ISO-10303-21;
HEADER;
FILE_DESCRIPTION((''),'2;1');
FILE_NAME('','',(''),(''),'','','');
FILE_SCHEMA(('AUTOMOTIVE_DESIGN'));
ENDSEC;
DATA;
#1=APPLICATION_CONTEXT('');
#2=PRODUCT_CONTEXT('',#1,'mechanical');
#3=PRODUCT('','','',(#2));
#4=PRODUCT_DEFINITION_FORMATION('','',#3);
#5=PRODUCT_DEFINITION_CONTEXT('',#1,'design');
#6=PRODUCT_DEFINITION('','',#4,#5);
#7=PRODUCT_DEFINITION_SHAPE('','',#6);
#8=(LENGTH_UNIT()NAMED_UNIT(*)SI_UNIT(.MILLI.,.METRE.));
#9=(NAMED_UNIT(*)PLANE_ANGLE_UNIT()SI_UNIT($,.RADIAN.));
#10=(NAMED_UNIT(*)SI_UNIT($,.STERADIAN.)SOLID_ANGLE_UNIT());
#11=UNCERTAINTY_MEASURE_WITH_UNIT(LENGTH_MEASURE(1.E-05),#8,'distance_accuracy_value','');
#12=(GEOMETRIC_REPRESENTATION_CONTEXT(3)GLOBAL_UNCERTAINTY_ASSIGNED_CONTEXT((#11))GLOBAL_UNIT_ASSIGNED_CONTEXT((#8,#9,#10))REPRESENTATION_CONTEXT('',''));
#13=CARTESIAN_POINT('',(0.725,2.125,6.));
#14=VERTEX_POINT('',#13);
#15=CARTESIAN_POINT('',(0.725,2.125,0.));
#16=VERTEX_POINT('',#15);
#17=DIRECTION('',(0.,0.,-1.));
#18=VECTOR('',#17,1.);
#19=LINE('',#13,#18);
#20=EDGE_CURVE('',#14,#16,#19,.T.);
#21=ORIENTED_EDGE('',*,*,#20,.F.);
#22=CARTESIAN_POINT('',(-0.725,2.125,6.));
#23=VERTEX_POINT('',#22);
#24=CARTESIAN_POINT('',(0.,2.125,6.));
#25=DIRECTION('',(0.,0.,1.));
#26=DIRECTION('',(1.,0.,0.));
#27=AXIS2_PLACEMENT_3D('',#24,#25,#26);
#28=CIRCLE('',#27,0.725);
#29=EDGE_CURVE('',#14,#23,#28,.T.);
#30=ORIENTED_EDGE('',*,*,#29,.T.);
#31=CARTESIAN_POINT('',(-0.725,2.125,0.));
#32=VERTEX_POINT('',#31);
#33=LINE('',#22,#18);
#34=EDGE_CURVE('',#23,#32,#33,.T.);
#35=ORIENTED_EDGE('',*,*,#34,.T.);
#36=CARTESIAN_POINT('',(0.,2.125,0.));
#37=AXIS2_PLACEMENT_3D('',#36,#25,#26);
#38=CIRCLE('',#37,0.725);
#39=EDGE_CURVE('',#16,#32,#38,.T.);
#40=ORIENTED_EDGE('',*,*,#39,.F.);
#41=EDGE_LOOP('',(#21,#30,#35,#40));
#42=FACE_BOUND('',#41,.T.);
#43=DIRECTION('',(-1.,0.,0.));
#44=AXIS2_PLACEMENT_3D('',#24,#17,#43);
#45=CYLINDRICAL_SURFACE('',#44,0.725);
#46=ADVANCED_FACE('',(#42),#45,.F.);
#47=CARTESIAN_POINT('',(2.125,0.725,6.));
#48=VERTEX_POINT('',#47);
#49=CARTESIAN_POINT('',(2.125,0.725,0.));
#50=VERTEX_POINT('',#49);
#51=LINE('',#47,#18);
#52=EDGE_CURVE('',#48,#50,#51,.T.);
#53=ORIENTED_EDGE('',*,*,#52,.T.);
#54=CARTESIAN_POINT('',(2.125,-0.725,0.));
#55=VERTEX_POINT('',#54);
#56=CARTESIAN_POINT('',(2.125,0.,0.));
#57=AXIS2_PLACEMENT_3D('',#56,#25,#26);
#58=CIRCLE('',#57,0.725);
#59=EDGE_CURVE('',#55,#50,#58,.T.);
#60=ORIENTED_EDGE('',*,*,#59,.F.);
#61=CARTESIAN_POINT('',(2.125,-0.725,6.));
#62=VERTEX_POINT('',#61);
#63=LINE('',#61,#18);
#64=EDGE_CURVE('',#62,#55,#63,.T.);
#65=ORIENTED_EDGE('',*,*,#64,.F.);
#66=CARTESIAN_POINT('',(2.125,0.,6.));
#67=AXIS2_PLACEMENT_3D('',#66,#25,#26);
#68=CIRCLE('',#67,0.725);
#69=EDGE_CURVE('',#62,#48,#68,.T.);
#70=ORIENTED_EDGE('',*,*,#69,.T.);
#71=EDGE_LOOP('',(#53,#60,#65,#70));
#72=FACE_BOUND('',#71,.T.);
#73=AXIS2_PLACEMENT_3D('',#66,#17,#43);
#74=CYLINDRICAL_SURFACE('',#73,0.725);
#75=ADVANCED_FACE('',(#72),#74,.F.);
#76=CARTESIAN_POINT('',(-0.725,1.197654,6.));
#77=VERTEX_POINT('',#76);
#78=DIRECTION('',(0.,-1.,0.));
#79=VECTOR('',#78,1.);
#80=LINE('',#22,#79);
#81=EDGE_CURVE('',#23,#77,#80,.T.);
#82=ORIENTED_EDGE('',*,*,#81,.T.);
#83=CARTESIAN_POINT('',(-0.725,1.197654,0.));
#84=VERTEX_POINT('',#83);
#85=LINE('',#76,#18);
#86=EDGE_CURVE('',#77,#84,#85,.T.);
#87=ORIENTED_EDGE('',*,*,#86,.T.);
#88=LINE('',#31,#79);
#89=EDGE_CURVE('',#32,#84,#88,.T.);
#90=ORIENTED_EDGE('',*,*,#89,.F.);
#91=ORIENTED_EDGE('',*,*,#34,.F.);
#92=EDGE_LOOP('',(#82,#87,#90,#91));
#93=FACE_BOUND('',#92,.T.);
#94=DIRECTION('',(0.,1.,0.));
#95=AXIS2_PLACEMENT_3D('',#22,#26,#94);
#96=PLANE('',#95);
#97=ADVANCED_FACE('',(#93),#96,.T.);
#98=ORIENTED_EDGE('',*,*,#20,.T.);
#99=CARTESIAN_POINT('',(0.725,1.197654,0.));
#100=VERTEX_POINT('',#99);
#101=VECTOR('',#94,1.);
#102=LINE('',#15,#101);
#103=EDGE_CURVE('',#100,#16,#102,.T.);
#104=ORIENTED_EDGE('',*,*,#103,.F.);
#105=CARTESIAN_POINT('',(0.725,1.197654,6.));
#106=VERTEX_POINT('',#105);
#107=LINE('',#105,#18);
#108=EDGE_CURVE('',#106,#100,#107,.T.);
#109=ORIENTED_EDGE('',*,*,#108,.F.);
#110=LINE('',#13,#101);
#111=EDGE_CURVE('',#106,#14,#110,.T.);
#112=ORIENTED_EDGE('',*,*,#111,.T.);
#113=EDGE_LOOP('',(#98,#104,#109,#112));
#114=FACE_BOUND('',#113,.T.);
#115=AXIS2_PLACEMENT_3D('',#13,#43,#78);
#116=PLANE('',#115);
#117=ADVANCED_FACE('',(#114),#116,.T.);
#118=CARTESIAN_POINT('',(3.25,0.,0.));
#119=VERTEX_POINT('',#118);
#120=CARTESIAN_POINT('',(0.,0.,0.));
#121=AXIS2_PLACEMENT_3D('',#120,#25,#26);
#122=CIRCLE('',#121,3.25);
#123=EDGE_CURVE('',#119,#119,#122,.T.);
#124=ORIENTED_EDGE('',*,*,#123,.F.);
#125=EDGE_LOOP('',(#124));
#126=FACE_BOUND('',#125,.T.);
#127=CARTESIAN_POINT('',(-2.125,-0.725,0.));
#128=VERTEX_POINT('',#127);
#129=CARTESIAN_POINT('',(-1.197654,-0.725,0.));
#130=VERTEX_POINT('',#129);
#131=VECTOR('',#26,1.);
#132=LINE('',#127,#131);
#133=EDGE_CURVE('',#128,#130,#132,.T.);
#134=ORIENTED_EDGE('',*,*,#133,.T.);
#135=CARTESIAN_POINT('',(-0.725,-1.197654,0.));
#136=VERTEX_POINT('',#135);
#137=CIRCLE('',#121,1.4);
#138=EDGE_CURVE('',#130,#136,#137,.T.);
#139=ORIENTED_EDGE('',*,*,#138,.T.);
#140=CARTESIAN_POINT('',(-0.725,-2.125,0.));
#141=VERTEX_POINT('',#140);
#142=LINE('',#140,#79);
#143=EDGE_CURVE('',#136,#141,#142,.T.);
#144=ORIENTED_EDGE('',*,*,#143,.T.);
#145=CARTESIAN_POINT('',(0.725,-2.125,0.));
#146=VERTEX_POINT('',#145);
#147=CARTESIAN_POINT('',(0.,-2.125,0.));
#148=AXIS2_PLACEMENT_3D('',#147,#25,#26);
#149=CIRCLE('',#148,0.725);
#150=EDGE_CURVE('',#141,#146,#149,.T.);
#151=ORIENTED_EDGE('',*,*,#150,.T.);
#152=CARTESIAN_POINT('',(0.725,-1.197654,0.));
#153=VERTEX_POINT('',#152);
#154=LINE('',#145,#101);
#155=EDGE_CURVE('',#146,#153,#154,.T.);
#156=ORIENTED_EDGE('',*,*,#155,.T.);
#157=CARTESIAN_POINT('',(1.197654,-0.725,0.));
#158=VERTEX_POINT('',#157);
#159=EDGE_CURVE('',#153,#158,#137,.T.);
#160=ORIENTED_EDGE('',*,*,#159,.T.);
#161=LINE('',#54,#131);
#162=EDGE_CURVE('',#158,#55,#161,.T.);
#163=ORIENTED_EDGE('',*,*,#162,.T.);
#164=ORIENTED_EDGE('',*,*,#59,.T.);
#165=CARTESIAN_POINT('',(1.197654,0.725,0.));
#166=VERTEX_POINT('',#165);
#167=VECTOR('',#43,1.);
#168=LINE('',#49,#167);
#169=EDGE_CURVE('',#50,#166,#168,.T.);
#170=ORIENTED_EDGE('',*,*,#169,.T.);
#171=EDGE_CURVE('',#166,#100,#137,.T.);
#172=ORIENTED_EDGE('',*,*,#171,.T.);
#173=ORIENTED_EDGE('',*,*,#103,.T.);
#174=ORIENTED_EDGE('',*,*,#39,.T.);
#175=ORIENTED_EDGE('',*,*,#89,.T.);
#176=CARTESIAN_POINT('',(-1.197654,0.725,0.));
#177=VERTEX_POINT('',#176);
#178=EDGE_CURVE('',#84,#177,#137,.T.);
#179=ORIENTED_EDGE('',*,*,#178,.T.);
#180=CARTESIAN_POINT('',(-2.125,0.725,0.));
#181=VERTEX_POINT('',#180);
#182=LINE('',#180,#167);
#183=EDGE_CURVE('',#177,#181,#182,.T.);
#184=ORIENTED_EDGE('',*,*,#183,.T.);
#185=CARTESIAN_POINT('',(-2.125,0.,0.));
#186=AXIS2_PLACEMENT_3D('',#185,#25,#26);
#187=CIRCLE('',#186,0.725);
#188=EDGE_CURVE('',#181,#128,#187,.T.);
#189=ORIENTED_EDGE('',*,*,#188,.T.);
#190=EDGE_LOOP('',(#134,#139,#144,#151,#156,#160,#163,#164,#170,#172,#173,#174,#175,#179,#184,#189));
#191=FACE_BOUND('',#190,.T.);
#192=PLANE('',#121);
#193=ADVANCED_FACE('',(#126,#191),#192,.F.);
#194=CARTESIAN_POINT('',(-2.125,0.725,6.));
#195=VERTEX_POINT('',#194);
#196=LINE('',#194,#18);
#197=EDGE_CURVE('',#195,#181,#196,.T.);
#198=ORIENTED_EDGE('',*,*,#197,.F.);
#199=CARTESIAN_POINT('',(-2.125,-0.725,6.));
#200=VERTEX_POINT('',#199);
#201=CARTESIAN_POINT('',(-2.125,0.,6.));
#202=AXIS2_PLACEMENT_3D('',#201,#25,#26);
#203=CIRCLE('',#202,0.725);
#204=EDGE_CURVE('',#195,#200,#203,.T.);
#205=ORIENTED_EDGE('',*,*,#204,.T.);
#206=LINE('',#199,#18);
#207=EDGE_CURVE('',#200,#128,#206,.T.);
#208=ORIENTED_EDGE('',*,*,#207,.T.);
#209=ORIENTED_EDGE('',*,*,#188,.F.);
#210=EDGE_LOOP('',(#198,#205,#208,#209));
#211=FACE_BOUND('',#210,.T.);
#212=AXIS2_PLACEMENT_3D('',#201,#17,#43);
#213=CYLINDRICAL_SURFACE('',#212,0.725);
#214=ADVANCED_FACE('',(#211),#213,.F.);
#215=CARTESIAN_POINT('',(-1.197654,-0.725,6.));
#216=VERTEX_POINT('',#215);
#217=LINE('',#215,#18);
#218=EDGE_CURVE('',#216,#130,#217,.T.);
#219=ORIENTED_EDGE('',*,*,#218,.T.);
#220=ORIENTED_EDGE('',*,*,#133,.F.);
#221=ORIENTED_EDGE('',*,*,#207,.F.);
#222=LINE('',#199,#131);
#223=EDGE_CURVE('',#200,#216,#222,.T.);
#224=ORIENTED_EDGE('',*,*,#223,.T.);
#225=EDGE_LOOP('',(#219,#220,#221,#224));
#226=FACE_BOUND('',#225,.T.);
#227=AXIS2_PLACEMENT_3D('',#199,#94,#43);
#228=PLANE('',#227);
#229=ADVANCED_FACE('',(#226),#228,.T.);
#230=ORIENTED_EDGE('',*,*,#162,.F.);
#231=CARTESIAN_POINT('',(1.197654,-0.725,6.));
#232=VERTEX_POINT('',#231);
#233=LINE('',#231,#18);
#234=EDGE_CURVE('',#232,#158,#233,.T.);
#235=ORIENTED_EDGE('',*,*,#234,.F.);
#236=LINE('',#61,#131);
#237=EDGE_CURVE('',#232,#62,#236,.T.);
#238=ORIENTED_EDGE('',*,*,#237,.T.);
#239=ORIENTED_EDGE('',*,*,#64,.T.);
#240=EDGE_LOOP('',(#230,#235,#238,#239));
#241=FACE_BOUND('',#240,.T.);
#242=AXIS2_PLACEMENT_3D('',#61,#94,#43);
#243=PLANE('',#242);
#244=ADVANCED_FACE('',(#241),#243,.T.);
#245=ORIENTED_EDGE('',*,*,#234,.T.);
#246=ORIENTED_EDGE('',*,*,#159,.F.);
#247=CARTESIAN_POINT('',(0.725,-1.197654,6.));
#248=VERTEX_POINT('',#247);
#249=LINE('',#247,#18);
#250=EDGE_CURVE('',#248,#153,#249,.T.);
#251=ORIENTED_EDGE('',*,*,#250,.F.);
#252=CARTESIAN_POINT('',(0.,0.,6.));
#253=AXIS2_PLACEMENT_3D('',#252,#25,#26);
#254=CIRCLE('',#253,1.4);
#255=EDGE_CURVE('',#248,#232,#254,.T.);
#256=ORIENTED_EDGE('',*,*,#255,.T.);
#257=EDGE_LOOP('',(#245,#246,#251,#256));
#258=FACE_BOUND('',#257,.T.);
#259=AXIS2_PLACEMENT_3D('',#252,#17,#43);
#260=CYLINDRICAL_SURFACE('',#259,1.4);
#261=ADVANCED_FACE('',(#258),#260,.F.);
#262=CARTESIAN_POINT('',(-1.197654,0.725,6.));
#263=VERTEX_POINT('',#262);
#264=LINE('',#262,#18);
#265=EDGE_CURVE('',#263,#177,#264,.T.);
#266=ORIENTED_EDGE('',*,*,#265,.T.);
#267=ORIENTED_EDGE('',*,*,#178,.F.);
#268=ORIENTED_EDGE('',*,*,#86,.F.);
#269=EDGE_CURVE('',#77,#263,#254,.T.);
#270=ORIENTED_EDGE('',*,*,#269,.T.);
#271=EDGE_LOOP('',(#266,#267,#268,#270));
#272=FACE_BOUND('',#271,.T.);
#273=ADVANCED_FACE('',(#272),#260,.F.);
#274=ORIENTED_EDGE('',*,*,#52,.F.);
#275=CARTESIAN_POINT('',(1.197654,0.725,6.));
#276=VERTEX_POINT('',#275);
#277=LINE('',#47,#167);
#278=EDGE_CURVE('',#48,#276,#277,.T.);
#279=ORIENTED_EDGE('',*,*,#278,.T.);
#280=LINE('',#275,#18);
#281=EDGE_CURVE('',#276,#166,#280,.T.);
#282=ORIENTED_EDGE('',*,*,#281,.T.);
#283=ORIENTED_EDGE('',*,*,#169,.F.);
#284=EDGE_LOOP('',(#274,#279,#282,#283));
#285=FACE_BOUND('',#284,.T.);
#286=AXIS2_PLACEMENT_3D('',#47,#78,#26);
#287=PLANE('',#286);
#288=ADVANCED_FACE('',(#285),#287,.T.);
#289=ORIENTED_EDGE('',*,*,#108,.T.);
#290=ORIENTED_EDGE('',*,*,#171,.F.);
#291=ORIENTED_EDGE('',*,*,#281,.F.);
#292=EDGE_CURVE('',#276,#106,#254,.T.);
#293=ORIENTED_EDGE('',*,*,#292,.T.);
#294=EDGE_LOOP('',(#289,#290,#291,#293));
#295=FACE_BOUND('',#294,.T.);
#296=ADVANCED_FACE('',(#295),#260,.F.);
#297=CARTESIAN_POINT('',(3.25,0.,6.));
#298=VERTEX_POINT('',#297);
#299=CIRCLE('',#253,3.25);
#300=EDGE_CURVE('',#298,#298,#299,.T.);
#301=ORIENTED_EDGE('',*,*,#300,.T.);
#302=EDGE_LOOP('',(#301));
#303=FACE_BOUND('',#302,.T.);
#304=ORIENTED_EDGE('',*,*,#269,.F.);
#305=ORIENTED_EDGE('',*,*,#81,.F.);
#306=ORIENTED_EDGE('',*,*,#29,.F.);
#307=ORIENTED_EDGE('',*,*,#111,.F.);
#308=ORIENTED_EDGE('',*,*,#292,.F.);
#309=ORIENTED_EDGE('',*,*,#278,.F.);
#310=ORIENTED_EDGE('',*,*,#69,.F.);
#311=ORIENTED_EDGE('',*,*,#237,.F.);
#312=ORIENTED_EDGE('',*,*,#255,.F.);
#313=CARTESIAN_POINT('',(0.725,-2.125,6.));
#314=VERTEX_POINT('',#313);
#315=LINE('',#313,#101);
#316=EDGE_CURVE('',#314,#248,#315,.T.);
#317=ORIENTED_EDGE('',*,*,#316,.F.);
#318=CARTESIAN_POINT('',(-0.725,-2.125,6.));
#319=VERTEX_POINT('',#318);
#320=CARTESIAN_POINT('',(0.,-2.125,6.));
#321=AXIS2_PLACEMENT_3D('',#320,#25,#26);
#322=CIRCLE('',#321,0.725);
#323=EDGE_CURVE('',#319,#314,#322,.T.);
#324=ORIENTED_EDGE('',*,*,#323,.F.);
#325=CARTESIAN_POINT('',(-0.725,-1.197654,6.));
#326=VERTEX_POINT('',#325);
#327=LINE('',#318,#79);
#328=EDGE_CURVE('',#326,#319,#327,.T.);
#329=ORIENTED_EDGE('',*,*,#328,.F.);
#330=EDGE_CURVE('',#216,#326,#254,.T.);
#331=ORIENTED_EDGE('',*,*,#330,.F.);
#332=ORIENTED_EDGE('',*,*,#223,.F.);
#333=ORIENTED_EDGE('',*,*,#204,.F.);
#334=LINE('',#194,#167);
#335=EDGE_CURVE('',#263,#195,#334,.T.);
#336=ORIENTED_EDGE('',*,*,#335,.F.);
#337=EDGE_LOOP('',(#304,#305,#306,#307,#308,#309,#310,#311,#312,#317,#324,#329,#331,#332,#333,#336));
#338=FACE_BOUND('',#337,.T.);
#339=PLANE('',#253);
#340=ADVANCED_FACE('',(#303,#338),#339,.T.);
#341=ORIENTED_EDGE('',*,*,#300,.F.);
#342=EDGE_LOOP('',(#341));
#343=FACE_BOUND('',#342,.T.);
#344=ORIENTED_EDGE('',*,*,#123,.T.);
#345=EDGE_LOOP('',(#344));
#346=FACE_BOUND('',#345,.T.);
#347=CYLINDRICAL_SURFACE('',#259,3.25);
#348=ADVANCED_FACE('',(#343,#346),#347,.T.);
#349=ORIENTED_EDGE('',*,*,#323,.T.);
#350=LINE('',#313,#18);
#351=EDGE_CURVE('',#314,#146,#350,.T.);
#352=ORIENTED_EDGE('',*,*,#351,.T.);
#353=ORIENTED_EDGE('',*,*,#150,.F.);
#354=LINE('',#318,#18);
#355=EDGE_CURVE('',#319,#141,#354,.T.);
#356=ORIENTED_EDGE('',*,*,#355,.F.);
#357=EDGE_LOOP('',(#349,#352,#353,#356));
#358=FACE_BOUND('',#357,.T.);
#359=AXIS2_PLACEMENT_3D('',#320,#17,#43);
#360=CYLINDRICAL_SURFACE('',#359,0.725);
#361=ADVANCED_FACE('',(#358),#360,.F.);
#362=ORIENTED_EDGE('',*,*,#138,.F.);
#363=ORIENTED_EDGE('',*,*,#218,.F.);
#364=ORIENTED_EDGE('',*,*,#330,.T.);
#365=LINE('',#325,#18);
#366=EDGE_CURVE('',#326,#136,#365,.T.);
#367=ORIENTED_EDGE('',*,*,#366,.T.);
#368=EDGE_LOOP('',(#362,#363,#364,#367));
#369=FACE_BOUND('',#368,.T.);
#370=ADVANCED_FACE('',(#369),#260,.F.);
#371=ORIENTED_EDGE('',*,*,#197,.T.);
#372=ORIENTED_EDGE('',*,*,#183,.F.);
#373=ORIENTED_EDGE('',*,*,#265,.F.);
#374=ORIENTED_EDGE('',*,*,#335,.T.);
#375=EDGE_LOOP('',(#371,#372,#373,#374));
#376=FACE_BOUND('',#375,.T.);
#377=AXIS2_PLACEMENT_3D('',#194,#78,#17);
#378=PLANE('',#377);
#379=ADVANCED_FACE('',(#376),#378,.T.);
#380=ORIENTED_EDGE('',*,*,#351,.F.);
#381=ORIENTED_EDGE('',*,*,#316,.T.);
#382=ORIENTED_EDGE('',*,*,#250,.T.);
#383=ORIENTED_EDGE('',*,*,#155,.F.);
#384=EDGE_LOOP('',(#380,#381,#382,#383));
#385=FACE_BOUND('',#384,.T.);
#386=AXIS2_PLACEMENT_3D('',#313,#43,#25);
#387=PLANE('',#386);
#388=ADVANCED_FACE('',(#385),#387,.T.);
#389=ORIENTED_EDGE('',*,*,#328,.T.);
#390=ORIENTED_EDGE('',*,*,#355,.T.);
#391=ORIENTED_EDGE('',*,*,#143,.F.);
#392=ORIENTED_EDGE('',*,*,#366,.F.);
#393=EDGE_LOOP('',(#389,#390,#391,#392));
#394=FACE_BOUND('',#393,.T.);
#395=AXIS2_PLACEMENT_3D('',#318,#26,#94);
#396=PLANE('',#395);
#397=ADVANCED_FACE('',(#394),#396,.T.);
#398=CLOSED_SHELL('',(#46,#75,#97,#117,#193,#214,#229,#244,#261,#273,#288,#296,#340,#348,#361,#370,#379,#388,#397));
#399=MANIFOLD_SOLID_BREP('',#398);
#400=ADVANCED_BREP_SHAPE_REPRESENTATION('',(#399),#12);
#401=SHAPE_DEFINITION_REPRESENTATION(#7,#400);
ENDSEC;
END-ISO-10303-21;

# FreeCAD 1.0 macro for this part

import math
import FreeCAD as App
import Part
import Sketcher
Q = App.Units.Quantity

doc = App.newDocument("Part")
body = doc.addObject("PartDesign::Body", "Body")

sketch1 = body.newObject("Sketcher::SketchObject", "Sketch")
sketch1.AttachmentSupport = (doc.getObject("XY_Plane"), [""])
sketch1.MapMode = "FlatFace"
sketch1.addGeometry(Part.Circle(App.Vector(0, 0, 0), App.Vector(0, 0, 1), 3.2), False)
sketch1.addGeometry(Part.ArcOfCircle(Part.Circle(App.Vector(2.1, 0, 0), App.Vector(0, 0, 1), 0.7), math.radians(-90), math.radians(90)), False)
sketch1.addGeometry(Part.LineSegment(App.Vector(2.1, -0.7, 0), App.Vector(1.2, -0.7, 0)), False)
sketch1.addGeometry(Part.ArcOfCircle(Part.Circle(App.Vector(0, 0, 0), App.Vector(0, 0, 1), 1.4), math.radians(-59), math.radians(-31)), False)
sketch1.addGeometry(Part.LineSegment(App.Vector(0.7, -1.2, 0), App.Vector(0.7, -2.1, 0)), False)
sketch1.addGeometry(Part.ArcOfCircle(Part.Circle(App.Vector(0, -2.1, 0), App.Vector(0, 0, 1), 0.7), math.radians(180), math.radians(360)), False)
sketch1.addGeometry(Part.LineSegment(App.Vector(-0.7, -2.1, 0), App.Vector(-0.7, -1.2, 0)), False)
sketch1.addGeometry(Part.ArcOfCircle(Part.Circle(App.Vector(0, 0, 0), App.Vector(0, 0, 1), 1.4), math.radians(-149), math.radians(-121)), False)
sketch1.addGeometry(Part.LineSegment(App.Vector(-1.2, -0.7, 0), App.Vector(-2.1, -0.7, 0)), False)
sketch1.addGeometry(Part.ArcOfCircle(Part.Circle(App.Vector(-2.1, 0, 0), App.Vector(0, 0, 1), 0.7), math.radians(90), math.radians(270)), False)
sketch1.addGeometry(Part.LineSegment(App.Vector(-2.1, 0.7, 0), App.Vector(-1.2, 0.7, 0)), False)
sketch1.addGeometry(Part.ArcOfCircle(Part.Circle(App.Vector(0, 0, 0), App.Vector(0, 0, 1), 1.4), math.radians(121), math.radians(149)), False)
sketch1.addGeometry(Part.LineSegment(App.Vector(-0.7, 1.2, 0), App.Vector(-0.7, 2.1, 0)), False)
sketch1.addGeometry(Part.ArcOfCircle(Part.Circle(App.Vector(0, 2.1, 0), App.Vector(0, 0, 1), 0.7), math.radians(0), math.radians(180)), False)
sketch1.addGeometry(Part.LineSegment(App.Vector(0.7, 2.1, 0), App.Vector(0.7, 1.2, 0)), False)
sketch1.addGeometry(Part.ArcOfCircle(Part.Circle(App.Vector(0, 0, 0), App.Vector(0, 0, 1), 1.4), math.radians(31), math.radians(59)), False)
sketch1.addGeometry(Part.LineSegment(App.Vector(1.2, 0.7, 0), App.Vector(2.1, 0.7, 0)), False)
sketch1.addConstraint(Sketcher.Constraint("Tangent", 1, 1, 2, 1))
sketch1.addConstraint(Sketcher.Constraint("Coincident", 2, 2, 3, 2))
sketch1.addConstraint(Sketcher.Constraint("Coincident", 3, 1, 4, 1))
sketch1.addConstraint(Sketcher.Constraint("Tangent", 4, 2, 5, 2))
sketch1.addConstraint(Sketcher.Constraint("Tangent", 5, 1, 6, 1))
sketch1.addConstraint(Sketcher.Constraint("Coincident", 6, 2, 7, 2))
sketch1.addConstraint(Sketcher.Constraint("Coincident", 7, 1, 8, 1))
sketch1.addConstraint(Sketcher.Constraint("Tangent", 8, 2, 9, 2))
sketch1.addConstraint(Sketcher.Constraint("Tangent", 9, 1, 10, 1))
sketch1.addConstraint(Sketcher.Constraint("Coincident", 10, 2, 11, 2))
sketch1.addConstraint(Sketcher.Constraint("Coincident", 11, 1, 12, 1))
sketch1.addConstraint(Sketcher.Constraint("Tangent", 12, 2, 13, 2))
sketch1.addConstraint(Sketcher.Constraint("Tangent", 13, 1, 14, 1))
sketch1.addConstraint(Sketcher.Constraint("Coincident", 14, 2, 15, 2))
sketch1.addConstraint(Sketcher.Constraint("Coincident", 15, 1, 16, 1))
sketch1.addConstraint(Sketcher.Constraint("Tangent", 16, 2, 1, 2))
sketch1.addConstraint(Sketcher.Constraint("Horizontal", 2))
sketch1.addConstraint(Sketcher.Constraint("Vertical", 4))
sketch1.addConstraint(Sketcher.Constraint("Vertical", 6))
sketch1.addConstraint(Sketcher.Constraint("Horizontal", 8))
sketch1.addConstraint(Sketcher.Constraint("Horizontal", 10))
sketch1.addConstraint(Sketcher.Constraint("Vertical", 12))
sketch1.addConstraint(Sketcher.Constraint("Vertical", 14))
sketch1.addConstraint(Sketcher.Constraint("Horizontal", 16))
sketch1.addConstraint(Sketcher.Constraint("Coincident", 0, 3, -1, 1))
sketch1.addConstraint(Sketcher.Constraint("Coincident", 3, 3, -1, 1))
sketch1.addConstraint(Sketcher.Constraint("Coincident", 7, 3, -1, 1))
sketch1.addConstraint(Sketcher.Constraint("Coincident", 11, 3, -1, 1))
sketch1.addConstraint(Sketcher.Constraint("Coincident", 15, 3, -1, 1))
sketch1.addConstraint(Sketcher.Constraint("Equal", 1, 5))
sketch1.addConstraint(Sketcher.Constraint("Equal", 3, 7))
sketch1.addConstraint(Sketcher.Constraint("Equal", 5, 9))
sketch1.addConstraint(Sketcher.Constraint("Equal", 7, 11))
sketch1.addConstraint(Sketcher.Constraint("Equal", 9, 13))
sketch1.addConstraint(Sketcher.Constraint("Equal", 11, 15))
sketch1.addConstraint(Sketcher.Constraint("Symmetric", 1, 3, 9, 3, -1, 1))
sketch1.addConstraint(Sketcher.Constraint("Symmetric", 5, 3, 13, 3, -1, 1))
sketch1.addConstraint(Sketcher.Constraint("PointOnObject", 1, 3, -1))
sketch1.addConstraint(Sketcher.Constraint("PointOnObject", 5, 3, -2))
sketch1.addConstraint(Sketcher.Constraint("Equal", 16, 4))
sketch1.addConstraint(Sketcher.Constraint("Diameter", 0, Q("6.5 mm")))
sketch1.addConstraint(Sketcher.Constraint("Radius", 3, Q("1.4 mm")))
sketch1.addConstraint(Sketcher.Constraint("Radius", 1, Q("0.725 mm")))
sketch1.addConstraint(Sketcher.Constraint("DistanceY", 4, 2, 2, 2, Q("1.4 mm")))
pad1 = body.newObject("PartDesign::Pad", "Pad")
pad1.Profile = sketch1
pad1.Length = 6

doc.recompute()
